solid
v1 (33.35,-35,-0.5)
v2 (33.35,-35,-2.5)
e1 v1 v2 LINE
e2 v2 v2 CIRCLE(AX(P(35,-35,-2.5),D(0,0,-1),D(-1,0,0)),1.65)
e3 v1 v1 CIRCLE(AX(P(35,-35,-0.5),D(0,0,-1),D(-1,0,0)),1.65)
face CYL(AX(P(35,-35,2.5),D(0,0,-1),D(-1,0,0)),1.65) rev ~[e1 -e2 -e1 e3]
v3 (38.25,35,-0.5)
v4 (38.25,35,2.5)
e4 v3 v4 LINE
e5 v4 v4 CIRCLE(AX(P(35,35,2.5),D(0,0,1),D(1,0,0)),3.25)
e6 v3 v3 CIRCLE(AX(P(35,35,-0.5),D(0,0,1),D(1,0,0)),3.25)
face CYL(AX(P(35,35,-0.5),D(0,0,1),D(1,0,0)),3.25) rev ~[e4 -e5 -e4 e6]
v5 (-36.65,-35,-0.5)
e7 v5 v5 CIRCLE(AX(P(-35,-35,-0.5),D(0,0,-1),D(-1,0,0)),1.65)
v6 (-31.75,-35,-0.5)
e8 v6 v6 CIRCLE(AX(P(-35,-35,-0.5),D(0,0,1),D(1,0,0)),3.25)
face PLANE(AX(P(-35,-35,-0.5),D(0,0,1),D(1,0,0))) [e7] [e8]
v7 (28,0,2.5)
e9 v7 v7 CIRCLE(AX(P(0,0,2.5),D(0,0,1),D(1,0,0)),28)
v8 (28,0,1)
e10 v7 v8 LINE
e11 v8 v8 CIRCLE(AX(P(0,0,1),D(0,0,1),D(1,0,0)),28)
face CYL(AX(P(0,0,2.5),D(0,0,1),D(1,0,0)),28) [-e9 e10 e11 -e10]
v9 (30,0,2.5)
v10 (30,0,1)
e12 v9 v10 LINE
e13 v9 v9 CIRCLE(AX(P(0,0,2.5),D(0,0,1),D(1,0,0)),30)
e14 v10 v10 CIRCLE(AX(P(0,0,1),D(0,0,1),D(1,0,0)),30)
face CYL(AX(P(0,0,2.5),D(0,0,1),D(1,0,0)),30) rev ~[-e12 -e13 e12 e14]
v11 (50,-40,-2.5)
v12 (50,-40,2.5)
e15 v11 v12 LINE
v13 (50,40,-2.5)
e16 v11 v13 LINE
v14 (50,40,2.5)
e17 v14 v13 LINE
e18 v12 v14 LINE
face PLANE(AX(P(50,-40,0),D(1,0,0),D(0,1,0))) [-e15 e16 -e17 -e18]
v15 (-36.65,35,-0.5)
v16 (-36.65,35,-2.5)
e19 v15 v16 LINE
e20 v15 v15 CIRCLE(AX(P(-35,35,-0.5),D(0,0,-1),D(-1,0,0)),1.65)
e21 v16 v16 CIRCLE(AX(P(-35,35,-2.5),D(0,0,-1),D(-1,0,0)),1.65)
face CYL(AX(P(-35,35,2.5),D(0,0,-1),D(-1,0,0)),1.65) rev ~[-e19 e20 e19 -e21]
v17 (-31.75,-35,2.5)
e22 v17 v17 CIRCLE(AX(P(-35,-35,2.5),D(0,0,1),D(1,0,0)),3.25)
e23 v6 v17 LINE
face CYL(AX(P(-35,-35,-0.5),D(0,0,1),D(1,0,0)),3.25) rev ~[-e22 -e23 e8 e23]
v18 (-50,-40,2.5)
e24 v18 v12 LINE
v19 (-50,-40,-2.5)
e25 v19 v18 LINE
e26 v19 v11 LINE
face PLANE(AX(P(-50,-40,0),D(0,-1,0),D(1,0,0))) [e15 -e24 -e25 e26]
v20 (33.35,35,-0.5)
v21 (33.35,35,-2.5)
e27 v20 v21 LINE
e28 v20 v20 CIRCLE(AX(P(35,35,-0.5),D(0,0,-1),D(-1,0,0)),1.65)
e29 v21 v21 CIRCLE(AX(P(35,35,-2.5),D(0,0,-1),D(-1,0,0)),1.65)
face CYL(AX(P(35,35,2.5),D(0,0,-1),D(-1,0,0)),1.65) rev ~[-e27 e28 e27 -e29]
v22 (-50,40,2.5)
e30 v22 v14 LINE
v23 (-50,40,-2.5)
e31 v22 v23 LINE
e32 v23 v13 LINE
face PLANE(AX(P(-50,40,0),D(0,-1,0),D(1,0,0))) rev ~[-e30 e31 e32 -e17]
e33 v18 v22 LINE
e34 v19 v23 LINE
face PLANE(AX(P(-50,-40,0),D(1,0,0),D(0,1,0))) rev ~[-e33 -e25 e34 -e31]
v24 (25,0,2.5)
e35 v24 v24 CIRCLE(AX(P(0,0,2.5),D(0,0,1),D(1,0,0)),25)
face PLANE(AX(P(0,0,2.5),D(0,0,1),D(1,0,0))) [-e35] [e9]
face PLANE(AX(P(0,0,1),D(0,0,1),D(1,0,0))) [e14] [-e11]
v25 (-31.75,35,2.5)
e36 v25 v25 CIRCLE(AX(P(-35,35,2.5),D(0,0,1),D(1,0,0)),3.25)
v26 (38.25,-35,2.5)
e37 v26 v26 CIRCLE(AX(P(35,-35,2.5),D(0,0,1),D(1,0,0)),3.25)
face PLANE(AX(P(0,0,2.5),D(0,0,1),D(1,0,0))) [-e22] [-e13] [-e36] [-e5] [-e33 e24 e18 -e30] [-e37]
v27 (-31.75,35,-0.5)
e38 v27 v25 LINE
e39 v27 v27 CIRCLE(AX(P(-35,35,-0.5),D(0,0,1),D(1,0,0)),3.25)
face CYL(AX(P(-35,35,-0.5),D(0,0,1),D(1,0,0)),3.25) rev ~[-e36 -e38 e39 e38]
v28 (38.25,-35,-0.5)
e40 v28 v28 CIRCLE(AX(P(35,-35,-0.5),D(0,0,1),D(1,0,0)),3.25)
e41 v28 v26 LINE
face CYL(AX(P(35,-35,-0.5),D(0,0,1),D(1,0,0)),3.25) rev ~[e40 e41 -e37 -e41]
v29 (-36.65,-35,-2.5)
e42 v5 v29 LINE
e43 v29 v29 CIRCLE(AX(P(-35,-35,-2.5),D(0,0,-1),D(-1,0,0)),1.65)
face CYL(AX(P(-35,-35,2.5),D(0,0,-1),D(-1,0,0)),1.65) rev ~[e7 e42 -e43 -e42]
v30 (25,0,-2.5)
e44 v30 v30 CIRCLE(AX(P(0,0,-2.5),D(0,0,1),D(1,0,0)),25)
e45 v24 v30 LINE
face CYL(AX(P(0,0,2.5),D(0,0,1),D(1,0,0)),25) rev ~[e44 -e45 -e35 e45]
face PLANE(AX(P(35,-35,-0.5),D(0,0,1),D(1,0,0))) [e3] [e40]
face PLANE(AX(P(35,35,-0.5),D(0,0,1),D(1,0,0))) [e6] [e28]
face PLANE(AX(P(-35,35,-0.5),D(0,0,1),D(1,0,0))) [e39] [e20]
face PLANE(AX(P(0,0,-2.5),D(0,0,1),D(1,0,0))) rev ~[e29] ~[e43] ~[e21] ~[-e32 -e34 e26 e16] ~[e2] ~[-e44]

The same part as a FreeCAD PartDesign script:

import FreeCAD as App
import Part
import Sketcher
from FreeCAD import Vector
Q = App.Units.Quantity


def add_polygon(sketch, points):
    """Adds a closed chain of lines whose ends are joined by coincident constraints."""
    first, n = sketch.GeometryCount, len(points)
    for a, b in zip(points, points[1:] + points[:1]):
        sketch.addGeometry(Part.LineSegment(App.Vector(*a, 0), App.Vector(*b, 0)), False)
    for i in range(n):
        sketch.addConstraint(Sketcher.Constraint("Coincident", first + i, 2, first + (i + 1) % n, 1))

doc = App.newDocument("Part")
body = doc.addObject("PartDesign::Body", "Body")

# Sketch on XY plane
sketch1 = body.newObject("Sketcher::SketchObject", "Sketch")
sketch1.AttachmentSupport = (doc.getObject("XY_Plane"), [""])
sketch1.MapMode = "FlatFace"
add_polygon(sketch1, [(-50, 40), (-50, -40), (50, -40), (50, 40)])  # lines 0-3
sketch1.addConstraint([
    Sketcher.Constraint("Vertical", 0),
    Sketcher.Constraint("Horizontal", 1),
    Sketcher.Constraint("Vertical", 2),
    Sketcher.Constraint("Horizontal", 3),
    Sketcher.Constraint("Symmetric", 0, 2, 2, 2, -1, 1),
    Sketcher.Constraint("DistanceX", 1, 1, 1, 2, Q("100 mm")),
    Sketcher.Constraint("DistanceY", 0, 2, 0, 1, Q("80 mm")),
])
pad1 = body.newObject("PartDesign::Pad", "Pad")
pad1.Profile = sketch1
pad1.Length = 5
pad1.Midplane = True

# Sketch on XY plane
sketch2 = body.newObject("Sketcher::SketchObject", "Sketch001")
sketch2.AttachmentSupport = (doc.getObject("XY_Plane"), [""])
sketch2.MapMode = "FlatFace"
sketch2.AttachmentOffset = App.Placement(Vector(0, 0, 2.5), App.Rotation())
sketch2.addGeometry(Part.Circle(Vector(0, 0, 0), Vector(0, 0, 1), 25), False)
sketch2.addConstraint([
    Sketcher.Constraint("Coincident", 0, 3, -1, 1),
    Sketcher.Constraint("Diameter", 0, Q("50 mm")),
])
pocket1 = body.newObject("PartDesign::Pocket", "Pocket")
pocket1.Profile = sketch2
pocket1.Type = "ThroughAll"

# Sketch on XY plane
sketch3 = body.newObject("Sketcher::SketchObject", "Sketch002")
sketch3.AttachmentSupport = (doc.getObject("XY_Plane"), [""])
sketch3.MapMode = "FlatFace"
sketch3.AttachmentOffset = App.Placement(Vector(0, 0, 2.5), App.Rotation())
sketch3.addGeometry([
    Part.Circle(Vector(0, 0, 0), Vector(0, 0, 1), 30),
    Part.Circle(Vector(0, 0, 0), Vector(0, 0, 1), 28),
], False)
sketch3.addConstraint([
    Sketcher.Constraint("Coincident", 0, 3, -1, 1),
    Sketcher.Constraint("Coincident", 1, 3, -1, 1),
    Sketcher.Constraint("Diameter", 0, Q("60 mm")),
    Sketcher.Constraint("Diameter", 1, Q("56 mm")),
])
pocket2 = body.newObject("PartDesign::Pocket", "Pocket001")
pocket2.Profile = sketch3
pocket2.Length = 1.5

# Sketch on XY plane
sketch4 = body.newObject("Sketcher::SketchObject", "Sketch003")
sketch4.AttachmentSupport = (doc.getObject("XY_Plane"), [""])
sketch4.MapMode = "FlatFace"
sketch4.AttachmentOffset = App.Placement(Vector(0, 0, 2.5), App.Rotation())
sketch4.addGeometry([
    Part.Circle(Vector(-35, 35, 0), Vector(0, 0, 1), 1.6),
    Part.Circle(Vector(35, 35, 0), Vector(0, 0, 1), 1.6),
    Part.Circle(Vector(35, -35, 0), Vector(0, 0, 1), 1.6),
    Part.Circle(Vector(-35, -35, 0), Vector(0, 0, 1), 1.6),
], False)
sketch4.addConstraint([
    Sketcher.Constraint("Equal", 0, 1),
    Sketcher.Constraint("Equal", 1, 2),
    Sketcher.Constraint("Equal", 2, 3),
    Sketcher.Constraint("Symmetric", 0, 3, 2, 3, -1, 1),
    Sketcher.Constraint("Symmetric", 1, 3, 3, 3, -1, 1),
    Sketcher.Constraint("Symmetric", 0, 3, 1, 3, -2),
    Sketcher.Constraint("Diameter", 0, Q("3.3 mm")),
    Sketcher.Constraint("DistanceX", 0, 3, -1, 1, Q("35 mm")),
    Sketcher.Constraint("DistanceY", -1, 1, 0, 3, Q("35 mm")),
])
doc.recompute()
hole = body.newObject("PartDesign::Hole", "Hole")
hole.Profile = sketch4
hole.ThreadType = "None"
hole.Diameter = 3.3
hole.DepthType = "ThroughAll"
hole.HoleCutType = "Counterbore"
hole.HoleCutDiameter = 6.5
hole.HoleCutDepth = 3

doc.recompute()
